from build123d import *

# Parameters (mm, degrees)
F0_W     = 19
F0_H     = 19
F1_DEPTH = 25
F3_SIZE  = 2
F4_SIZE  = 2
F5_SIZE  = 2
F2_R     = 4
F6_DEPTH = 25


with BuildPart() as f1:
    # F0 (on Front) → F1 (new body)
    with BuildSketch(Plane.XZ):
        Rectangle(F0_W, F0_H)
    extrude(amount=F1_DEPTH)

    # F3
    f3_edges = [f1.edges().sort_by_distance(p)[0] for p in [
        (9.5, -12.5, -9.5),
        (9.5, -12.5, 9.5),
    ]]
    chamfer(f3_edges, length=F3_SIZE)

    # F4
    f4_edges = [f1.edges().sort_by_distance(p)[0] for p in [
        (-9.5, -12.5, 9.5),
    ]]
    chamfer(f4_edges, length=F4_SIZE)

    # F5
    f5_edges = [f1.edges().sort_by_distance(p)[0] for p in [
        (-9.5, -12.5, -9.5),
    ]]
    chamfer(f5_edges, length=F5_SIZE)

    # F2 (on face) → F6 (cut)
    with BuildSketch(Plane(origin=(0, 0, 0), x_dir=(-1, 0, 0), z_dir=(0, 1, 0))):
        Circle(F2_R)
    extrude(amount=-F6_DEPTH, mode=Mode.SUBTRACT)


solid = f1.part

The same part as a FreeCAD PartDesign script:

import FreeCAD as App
import Part
import Sketcher

V = App.Vector


def edges_at(feature, points):
    """Names of the edges that pass closest to the given points."""
    edges = feature.Shape.Edges
    near = lambda p: min(range(len(edges)), key=lambda i: edges[i].distToShape(Part.Vertex(*p))[0])
    return sorted({f"Edge{near(p) + 1}" for p in points})

doc = App.newDocument("Part")
body = doc.addObject("PartDesign::Body", "Body")

# Sketch on XZ plane
sketch1 = doc.addObject("Sketcher::SketchObject", "Sketch")
body.addObject(sketch1)
sketch1.AttachmentSupport = (doc.XZ_Plane, [""])
sketch1.MapMode = "FlatFace"
sketch1.addGeometry([
    Part.LineSegment(V(-10, 10, 0), V(-10, -10, 0)),
    Part.LineSegment(V(-10, -10, 0), V(10, -10, 0)),
    Part.LineSegment(V(10, -10, 0), V(10, 10, 0)),
    Part.LineSegment(V(10, 10, 0), V(-10, 10, 0)),
], False)
sketch1.addConstraint([
    Sketcher.Constraint("Coincident", 0, 2, 1, 1),
    Sketcher.Constraint("Coincident", 1, 2, 2, 1),
    Sketcher.Constraint("Coincident", 2, 2, 3, 1),
    Sketcher.Constraint("Coincident", 3, 2, 0, 1),
    Sketcher.Constraint("Vertical", 0),
    Sketcher.Constraint("Horizontal", 1),
    Sketcher.Constraint("Vertical", 2),
    Sketcher.Constraint("Horizontal", 3),
    Sketcher.Constraint("Symmetric", 0, 2, 2, 2, -1, 1),
    Sketcher.Constraint("Equal", 3, 0),
    Sketcher.Constraint("DistanceX", 1, 1, 1, 2, 19.0),
])
pad1 = doc.addObject("PartDesign::Pad", "Pad")
body.addObject(pad1)
pad1.Profile = sketch1
pad1.Length = 25
doc.recompute()

chamfer = doc.addObject("PartDesign::Chamfer", "Chamfer")
body.addObject(chamfer)
chamfer.Base = (pad1, edges_at(pad1, [(9.5, -12.5, -9.5), (9.5, -12.5, 9.5)]))
chamfer.Size = 2
doc.recompute()

chamfer2 = doc.addObject("PartDesign::Chamfer", "Chamfer001")
body.addObject(chamfer2)
chamfer2.Base = (chamfer, edges_at(chamfer, [(-9.5, -12.5, 9.5)]))
chamfer2.Size = 2
doc.recompute()

chamfer3 = doc.addObject("PartDesign::Chamfer", "Chamfer002")
body.addObject(chamfer3)
chamfer3.Base = (chamfer2, edges_at(chamfer2, [(-9.5, -12.5, -9.5)]))
chamfer3.Size = 2

# Sketch on XZ plane
sketch2 = doc.addObject("Sketcher::SketchObject", "Sketch001")
body.addObject(sketch2)
sketch2.AttachmentSupport = (doc.XZ_Plane, [""])
sketch2.MapMode = "FlatFace"
sketch2.addGeometry(Part.Circle(V(0, 0, 0), V(0, 0, 1), 4), False)
sketch2.addConstraint([
    Sketcher.Constraint("Coincident", 0, 3, -1, 1),
    Sketcher.Constraint("Diameter", 0, 8.0),
])
pocket1 = doc.addObject("PartDesign::Pocket", "Pocket")
body.addObject(pocket1)
pocket1.Profile = sketch2
pocket1.Length = 25
pocket1.Reversed = True

doc.recompute()
